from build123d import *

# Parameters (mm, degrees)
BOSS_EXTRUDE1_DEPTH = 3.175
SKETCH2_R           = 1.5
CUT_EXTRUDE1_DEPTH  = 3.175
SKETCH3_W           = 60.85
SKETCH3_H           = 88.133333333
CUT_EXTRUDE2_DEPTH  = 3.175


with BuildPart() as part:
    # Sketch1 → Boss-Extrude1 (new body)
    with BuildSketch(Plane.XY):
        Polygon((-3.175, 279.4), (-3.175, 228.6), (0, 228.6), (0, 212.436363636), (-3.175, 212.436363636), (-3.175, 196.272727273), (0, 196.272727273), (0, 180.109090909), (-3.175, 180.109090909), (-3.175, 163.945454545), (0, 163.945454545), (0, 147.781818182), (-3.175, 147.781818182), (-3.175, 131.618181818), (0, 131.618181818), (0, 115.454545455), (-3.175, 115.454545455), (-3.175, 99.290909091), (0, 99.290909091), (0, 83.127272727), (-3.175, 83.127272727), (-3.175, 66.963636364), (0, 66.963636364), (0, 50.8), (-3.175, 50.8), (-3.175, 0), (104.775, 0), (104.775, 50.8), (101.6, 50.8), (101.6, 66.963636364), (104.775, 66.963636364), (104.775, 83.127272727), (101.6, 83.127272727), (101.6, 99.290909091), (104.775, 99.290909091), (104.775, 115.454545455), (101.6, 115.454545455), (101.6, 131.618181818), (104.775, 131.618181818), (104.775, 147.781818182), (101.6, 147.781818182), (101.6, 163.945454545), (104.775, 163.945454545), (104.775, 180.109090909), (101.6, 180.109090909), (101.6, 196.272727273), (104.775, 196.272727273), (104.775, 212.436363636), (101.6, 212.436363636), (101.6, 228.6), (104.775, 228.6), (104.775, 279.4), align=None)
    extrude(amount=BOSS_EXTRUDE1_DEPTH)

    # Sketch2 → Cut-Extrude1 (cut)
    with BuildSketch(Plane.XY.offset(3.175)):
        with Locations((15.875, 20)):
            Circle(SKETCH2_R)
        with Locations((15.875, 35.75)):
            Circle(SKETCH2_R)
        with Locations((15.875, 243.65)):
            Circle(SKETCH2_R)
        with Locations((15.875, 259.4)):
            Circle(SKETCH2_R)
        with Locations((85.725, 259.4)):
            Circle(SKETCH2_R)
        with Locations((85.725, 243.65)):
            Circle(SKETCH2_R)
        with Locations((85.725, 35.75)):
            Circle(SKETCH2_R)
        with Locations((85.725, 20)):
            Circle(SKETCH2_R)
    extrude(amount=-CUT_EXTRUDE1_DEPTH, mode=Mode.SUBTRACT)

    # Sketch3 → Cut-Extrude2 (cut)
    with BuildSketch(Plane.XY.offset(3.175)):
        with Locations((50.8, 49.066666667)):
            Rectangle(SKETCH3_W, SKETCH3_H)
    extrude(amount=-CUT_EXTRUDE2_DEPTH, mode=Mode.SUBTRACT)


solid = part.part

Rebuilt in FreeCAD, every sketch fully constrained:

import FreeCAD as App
import Part
import Sketcher
Q = App.Units.Quantity

doc = App.newDocument("Part")
body = doc.addObject("PartDesign::Body", "Body")

# Sketch on XY plane
sketch1 = body.newObject("Sketcher::SketchObject", "Sketch")
sketch1.AttachmentSupport = (doc.getObject("XY_Plane"), [""])
sketch1.MapMode = "FlatFace"
sketch1.addGeometry([
    Part.LineSegment(App.Vector(-3.2, 279.4, 0), App.Vector(-3.2, 228.6, 0)),  # 0
    Part.LineSegment(App.Vector(-3.2, 228.6, 0), App.Vector(0, 228.6, 0)),  # 1
    Part.LineSegment(App.Vector(0, 228.6, 0), App.Vector(0, 212.4, 0)),  # 2
    Part.LineSegment(App.Vector(0, 212.4, 0), App.Vector(-3.2, 212.4, 0)),  # 3
    Part.LineSegment(App.Vector(-3.2, 212.4, 0), App.Vector(-3.2, 196.3, 0)),  # 4
    Part.LineSegment(App.Vector(-3.2, 196.3, 0), App.Vector(0, 196.3, 0)),  # 5
    Part.LineSegment(App.Vector(0, 196.3, 0), App.Vector(0, 180.1, 0)),  # 6
    Part.LineSegment(App.Vector(0, 180.1, 0), App.Vector(-3.2, 180.1, 0)),  # 7
    Part.LineSegment(App.Vector(-3.2, 180.1, 0), App.Vector(-3.2, 163.9, 0)),  # 8
    Part.LineSegment(App.Vector(-3.2, 163.9, 0), App.Vector(0, 163.9, 0)),  # 9
    Part.LineSegment(App.Vector(0, 163.9, 0), App.Vector(0, 147.8, 0)),  # 10
    Part.LineSegment(App.Vector(0, 147.8, 0), App.Vector(-3.2, 147.8, 0)),  # 11
    Part.LineSegment(App.Vector(-3.2, 147.8, 0), App.Vector(-3.2, 131.6, 0)),  # 12
    Part.LineSegment(App.Vector(-3.2, 131.6, 0), App.Vector(0, 131.6, 0)),  # 13
    Part.LineSegment(App.Vector(0, 131.6, 0), App.Vector(0, 115.5, 0)),  # 14
    Part.LineSegment(App.Vector(0, 115.5, 0), App.Vector(-3.2, 115.5, 0)),  # 15
    Part.LineSegment(App.Vector(-3.2, 115.5, 0), App.Vector(-3.2, 99.3, 0)),  # 16
    Part.LineSegment(App.Vector(-3.2, 99.3, 0), App.Vector(0, 99.3, 0)),  # 17
    Part.LineSegment(App.Vector(0, 99.3, 0), App.Vector(0, 83.1, 0)),  # 18
    Part.LineSegment(App.Vector(0, 83.1, 0), App.Vector(-3.2, 83.1, 0)),  # 19
    Part.LineSegment(App.Vector(-3.2, 83.1, 0), App.Vector(-3.2, 67, 0)),  # 20
    Part.LineSegment(App.Vector(-3.2, 67, 0), App.Vector(0, 67, 0)),  # 21
    Part.LineSegment(App.Vector(0, 67, 0), App.Vector(0, 50.8, 0)),  # 22
    Part.LineSegment(App.Vector(0, 50.8, 0), App.Vector(-3.2, 50.8, 0)),  # 23
    Part.LineSegment(App.Vector(-3.2, 50.8, 0), App.Vector(-3.2, 0, 0)),  # 24
    Part.LineSegment(App.Vector(-3.2, 0, 0), App.Vector(104.8, 0, 0)),  # 25
    Part.LineSegment(App.Vector(104.8, 0, 0), App.Vector(104.8, 50.8, 0)),  # 26
    Part.LineSegment(App.Vector(104.8, 50.8, 0), App.Vector(101.6, 50.8, 0)),  # 27
    Part.LineSegment(App.Vector(101.6, 50.8, 0), App.Vector(101.6, 67, 0)),  # 28
    Part.LineSegment(App.Vector(101.6, 67, 0), App.Vector(104.8, 67, 0)),  # 29
    Part.LineSegment(App.Vector(104.8, 67, 0), App.Vector(104.8, 83.1, 0)),  # 30
    Part.LineSegment(App.Vector(104.8, 83.1, 0), App.Vector(101.6, 83.1, 0)),  # 31
    Part.LineSegment(App.Vector(101.6, 83.1, 0), App.Vector(101.6, 99.3, 0)),  # 32
    Part.LineSegment(App.Vector(101.6, 99.3, 0), App.Vector(104.8, 99.3, 0)),  # 33
    Part.LineSegment(App.Vector(104.8, 99.3, 0), App.Vector(104.8, 115.5, 0)),  # 34
    Part.LineSegment(App.Vector(104.8, 115.5, 0), App.Vector(101.6, 115.5, 0)),  # 35
    Part.LineSegment(App.Vector(101.6, 115.5, 0), App.Vector(101.6, 131.6, 0)),  # 36
    Part.LineSegment(App.Vector(101.6, 131.6, 0), App.Vector(104.8, 131.6, 0)),  # 37
    Part.LineSegment(App.Vector(104.8, 131.6, 0), App.Vector(104.8, 147.8, 0)),  # 38
    Part.LineSegment(App.Vector(104.8, 147.8, 0), App.Vector(101.6, 147.8, 0)),  # 39
    Part.LineSegment(App.Vector(101.6, 147.8, 0), App.Vector(101.6, 163.9, 0)),  # 40
    Part.LineSegment(App.Vector(101.6, 163.9, 0), App.Vector(104.8, 163.9, 0)),  # 41
    Part.LineSegment(App.Vector(104.8, 163.9, 0), App.Vector(104.8, 180.1, 0)),  # 42
    Part.LineSegment(App.Vector(104.8, 180.1, 0), App.Vector(101.6, 180.1, 0)),  # 43
    Part.LineSegment(App.Vector(101.6, 180.1, 0), App.Vector(101.6, 196.3, 0)),  # 44
    Part.LineSegment(App.Vector(101.6, 196.3, 0), App.Vector(104.8, 196.3, 0)),  # 45
    Part.LineSegment(App.Vector(104.8, 196.3, 0), App.Vector(104.8, 212.4, 0)),  # 46
    Part.LineSegment(App.Vector(104.8, 212.4, 0), App.Vector(101.6, 212.4, 0)),  # 47
    Part.LineSegment(App.Vector(101.6, 212.4, 0), App.Vector(101.6, 228.6, 0)),  # 48
    Part.LineSegment(App.Vector(101.6, 228.6, 0), App.Vector(104.8, 228.6, 0)),  # 49
    Part.LineSegment(App.Vector(104.8, 228.6, 0), App.Vector(104.8, 279.4, 0)),  # 50
    Part.LineSegment(App.Vector(104.8, 279.4, 0), App.Vector(-3.2, 279.4, 0)),  # 51
], False)
sketch1.addConstraint([
    Sketcher.Constraint("Coincident", 0, 2, 1, 1),
    Sketcher.Constraint("Coincident", 1, 2, 2, 1),
    Sketcher.Constraint("Coincident", 2, 2, 3, 1),
    Sketcher.Constraint("Coincident", 3, 2, 4, 1),
    Sketcher.Constraint("Coincident", 4, 2, 5, 1),
    Sketcher.Constraint("Coincident", 5, 2, 6, 1),
    Sketcher.Constraint("Coincident", 6, 2, 7, 1),
    Sketcher.Constraint("Coincident", 7, 2, 8, 1),
    Sketcher.Constraint("Coincident", 8, 2, 9, 1),
    Sketcher.Constraint("Coincident", 9, 2, 10, 1),
    Sketcher.Constraint("Coincident", 10, 2, 11, 1),
    Sketcher.Constraint("Coincident", 11, 2, 12, 1),
    Sketcher.Constraint("Coincident", 12, 2, 13, 1),
    Sketcher.Constraint("Coincident", 13, 2, 14, 1),
    Sketcher.Constraint("Coincident", 14, 2, 15, 1),
    Sketcher.Constraint("Coincident", 15, 2, 16, 1),
    Sketcher.Constraint("Coincident", 16, 2, 17, 1),
    Sketcher.Constraint("Coincident", 17, 2, 18, 1),
    Sketcher.Constraint("Coincident", 18, 2, 19, 1),
    Sketcher.Constraint("Coincident", 19, 2, 20, 1),
    Sketcher.Constraint("Coincident", 20, 2, 21, 1),
    Sketcher.Constraint("Coincident", 21, 2, 22, 1),
    Sketcher.Constraint("Coincident", 22, 2, 23, 1),
    Sketcher.Constraint("Coincident", 23, 2, 24, 1),
    Sketcher.Constraint("Coincident", 24, 2, 25, 1),
    Sketcher.Constraint("Coincident", 25, 2, 26, 1),
    Sketcher.Constraint("Coincident", 26, 2, 27, 1),
    Sketcher.Constraint("Coincident", 27, 2, 28, 1),
    Sketcher.Constraint("Coincident", 28, 2, 29, 1),
    Sketcher.Constraint("Coincident", 29, 2, 30, 1),
    Sketcher.Constraint("Coincident", 30, 2, 31, 1),
    Sketcher.Constraint("Coincident", 31, 2, 32, 1),
    Sketcher.Constraint("Coincident", 32, 2, 33, 1),
    Sketcher.Constraint("Coincident", 33, 2, 34, 1),
    Sketcher.Constraint("Coincident", 34, 2, 35, 1),
    Sketcher.Constraint("Coincident", 35, 2, 36, 1),
    Sketcher.Constraint("Coincident", 36, 2, 37, 1),
    Sketcher.Constraint("Coincident", 37, 2, 38, 1),
    Sketcher.Constraint("Coincident", 38, 2, 39, 1),
    Sketcher.Constraint("Coincident", 39, 2, 40, 1),
    Sketcher.Constraint("Coincident", 40, 2, 41, 1),
    Sketcher.Constraint("Coincident", 41, 2, 42, 1),
    Sketcher.Constraint("Coincident", 42, 2, 43, 1),
    Sketcher.Constraint("Coincident", 43, 2, 44, 1),
    Sketcher.Constraint("Coincident", 44, 2, 45, 1),
    Sketcher.Constraint("Coincident", 45, 2, 46, 1),
    Sketcher.Constraint("Coincident", 46, 2, 47, 1),
    Sketcher.Constraint("Coincident", 47, 2, 48, 1),
    Sketcher.Constraint("Coincident", 48, 2, 49, 1),
    Sketcher.Constraint("Coincident", 49, 2, 50, 1),
    Sketcher.Constraint("Coincident", 50, 2, 51, 1),
    Sketcher.Constraint("Coincident", 51, 2, 0, 1),
    Sketcher.Constraint("Vertical", 0),
    Sketcher.Constraint("Horizontal", 1),
    Sketcher.Constraint("Vertical", 2),
    Sketcher.Constraint("Horizontal", 3),
    Sketcher.Constraint("Vertical", 4),
    Sketcher.Constraint("Horizontal", 5),
    Sketcher.Constraint("Vertical", 6),
    Sketcher.Constraint("Horizontal", 7),
    Sketcher.Constraint("Vertical", 8),
    Sketcher.Constraint("Horizontal", 9),
    Sketcher.Constraint("Vertical", 10),
    Sketcher.Constraint("Horizontal", 11),
    Sketcher.Constraint("Vertical", 12),
    Sketcher.Constraint("Horizontal", 13),
    Sketcher.Constraint("Vertical", 14),
    Sketcher.Constraint("Horizontal", 15),
    Sketcher.Constraint("Vertical", 16),
    Sketcher.Constraint("Horizontal", 17),
    Sketcher.Constraint("Vertical", 18),
    Sketcher.Constraint("Horizontal", 19),
    Sketcher.Constraint("Vertical", 20),
    Sketcher.Constraint("Horizontal", 21),
    Sketcher.Constraint("Vertical", 22),
    Sketcher.Constraint("Horizontal", 23),
    Sketcher.Constraint("Vertical", 24),
    Sketcher.Constraint("Horizontal", 25),
    Sketcher.Constraint("Vertical", 26),
    Sketcher.Constraint("Horizontal", 27),
    Sketcher.Constraint("Vertical", 28),
    Sketcher.Constraint("Horizontal", 29),
    Sketcher.Constraint("Vertical", 30),
    Sketcher.Constraint("Horizontal", 31),
    Sketcher.Constraint("Vertical", 32),
    Sketcher.Constraint("Horizontal", 33),
    Sketcher.Constraint("Vertical", 34),
    Sketcher.Constraint("Horizontal", 35),
    Sketcher.Constraint("Vertical", 36),
    Sketcher.Constraint("Horizontal", 37),
    Sketcher.Constraint("Vertical", 38),
    Sketcher.Constraint("Horizontal", 39),
    Sketcher.Constraint("Vertical", 40),
    Sketcher.Constraint("Horizontal", 41),
    Sketcher.Constraint("Vertical", 42),
    Sketcher.Constraint("Horizontal", 43),
    Sketcher.Constraint("Vertical", 44),
    Sketcher.Constraint("Horizontal", 45),
    Sketcher.Constraint("Vertical", 46),
    Sketcher.Constraint("Horizontal", 47),
    Sketcher.Constraint("Vertical", 48),
    Sketcher.Constraint("Horizontal", 49),
    Sketcher.Constraint("Vertical", 50),
    Sketcher.Constraint("Horizontal", 51),
    Sketcher.Constraint("PointOnObject", 1, 2, -2),
    Sketcher.Constraint("PointOnObject", 5, 2, -2),
    Sketcher.Constraint("PointOnObject", 9, 2, -2),
    Sketcher.Constraint("PointOnObject", 13, 2, -2),
    Sketcher.Constraint("PointOnObject", 17, 2, -2),
    Sketcher.Constraint("PointOnObject", 21, 2, -2),
    Sketcher.Constraint("PointOnObject", 24, 2, -1),
    Sketcher.Constraint("Horizontal", 23, 2, 26, 2),
    Sketcher.Constraint("Horizontal", 21, 2, 28, 2),
    Sketcher.Constraint("Horizontal", 19, 2, 30, 2),
    Sketcher.Constraint("Horizontal", 17, 2, 32, 2),
    Sketcher.Constraint("Horizontal", 15, 2, 34, 2),
    Sketcher.Constraint("Horizontal", 13, 2, 36, 2),
    Sketcher.Constraint("Horizontal", 11, 2, 38, 2),
    Sketcher.Constraint("Horizontal", 9, 2, 40, 2),
    Sketcher.Constraint("Horizontal", 7, 2, 42, 2),
    Sketcher.Constraint("Horizontal", 5, 2, 44, 2),
    Sketcher.Constraint("Horizontal", 3, 2, 46, 2),
    Sketcher.Constraint("Horizontal", 1, 2, 48, 2),
    Sketcher.Constraint("Vertical", 0, 2, 3, 2),
    Sketcher.Constraint("Vertical", 4, 2, 7, 2),
    Sketcher.Constraint("Vertical", 8, 2, 11, 2),
    Sketcher.Constraint("Vertical", 12, 2, 15, 2),
    Sketcher.Constraint("Vertical", 16, 2, 19, 2),
    Sketcher.Constraint("Vertical", 20, 2, 23, 2),
    Sketcher.Constraint("Vertical", 26, 2, 29, 2),
    Sketcher.Constraint("Vertical", 28, 2, 31, 2),
    Sketcher.Constraint("Vertical", 30, 2, 33, 2),
    Sketcher.Constraint("Vertical", 32, 2, 35, 2),
    Sketcher.Constraint("Vertical", 34, 2, 37, 2),
    Sketcher.Constraint("Vertical", 36, 2, 39, 2),
    Sketcher.Constraint("Vertical", 38, 2, 41, 2),
    Sketcher.Constraint("Vertical", 40, 2, 43, 2),
    Sketcher.Constraint("Vertical", 42, 2, 45, 2),
    Sketcher.Constraint("Vertical", 44, 2, 47, 2),
    Sketcher.Constraint("Vertical", 46, 2, 49, 2),
    Sketcher.Constraint("Equal", 23, 27),
    Sketcher.Constraint("Equal", 2, 4),
    Sketcher.Constraint("Equal", 4, 6),
    Sketcher.Constraint("Equal", 6, 8),
    Sketcher.Constraint("Equal", 8, 10),
    Sketcher.Constraint("Equal", 10, 12),
    Sketcher.Constraint("Equal", 12, 14),
    Sketcher.Constraint("Equal", 14, 16),
    Sketcher.Constraint("Equal", 16, 18),
    Sketcher.Constraint("Equal", 18, 20),
    Sketcher.Constraint("Equal", 20, 22),
    Sketcher.Constraint("Equal", 0, 24),
    Sketcher.Constraint("DistanceY", 0, 2, 0, 1, Q("2 in")),
    Sketcher.Constraint("DistanceY", -1, 1, 0, 2, Q("9 in")),
    Sketcher.Constraint("DistanceX", -1, 1, 27, 2, Q("4 in")),
    Sketcher.Constraint("DistanceX", 25, 1, 25, 2, Q("4.25 in")),
])
pad1 = body.newObject("PartDesign::Pad", "Pad")
pad1.Profile = sketch1
pad1.Length = Q("0.125 in")

# Sketch on XY plane
sketch2 = body.newObject("Sketcher::SketchObject", "Sketch001")
sketch2.AttachmentSupport = (doc.getObject("XY_Plane"), [""])
sketch2.MapMode = "FlatFace"
sketch2.AttachmentOffset = App.Placement(App.Vector(0, 0, 0.125 * 25.4), App.Rotation())
sketch2.addGeometry([
    Part.Circle(App.Vector(15.9, 20, 0), App.Vector(0, 0, 1), 1.5),  # 0
    Part.Circle(App.Vector(15.9, 35.8, 0), App.Vector(0, 0, 1), 1.5),  # 1
    Part.Circle(App.Vector(15.9, 243.7, 0), App.Vector(0, 0, 1), 1.5),  # 2
    Part.Circle(App.Vector(15.9, 259.4, 0), App.Vector(0, 0, 1), 1.5),  # 3
    Part.Circle(App.Vector(85.7, 259.4, 0), App.Vector(0, 0, 1), 1.5),  # 4
    Part.Circle(App.Vector(85.7, 243.7, 0), App.Vector(0, 0, 1), 1.5),  # 5
    Part.Circle(App.Vector(85.7, 35.8, 0), App.Vector(0, 0, 1), 1.5),  # 6
    Part.Circle(App.Vector(85.7, 20, 0), App.Vector(0, 0, 1), 1.5),  # 7
], False)
sketch2.addConstraint([
    Sketcher.Constraint("Equal", 0, 1),
    Sketcher.Constraint("Equal", 1, 2),
    Sketcher.Constraint("Equal", 2, 3),
    Sketcher.Constraint("Equal", 3, 4),
    Sketcher.Constraint("Equal", 4, 5),
    Sketcher.Constraint("Equal", 5, 6),
    Sketcher.Constraint("Equal", 6, 7),
    Sketcher.Constraint("Horizontal", 3, 3, 4, 3),
    Sketcher.Constraint("Horizontal", 2, 3, 5, 3),
    Sketcher.Constraint("Horizontal", 1, 3, 6, 3),
    Sketcher.Constraint("Horizontal", 0, 3, 7, 3),
    Sketcher.Constraint("Vertical", 0, 3, 1, 3),
    Sketcher.Constraint("Vertical", 1, 3, 2, 3),
    Sketcher.Constraint("Vertical", 2, 3, 3, 3),
    Sketcher.Constraint("Vertical", 4, 3, 5, 3),
    Sketcher.Constraint("Vertical", 5, 3, 6, 3),
    Sketcher.Constraint("Vertical", 6, 3, 7, 3),
    Sketcher.Constraint("Diameter", 0, 3.0),
    Sketcher.Constraint("DistanceX", 3, 3, 4, 3, Q("2.75 in")),
    Sketcher.Constraint("DistanceX", -1, 1, 0, 3, Q("0.625 in")),
    Sketcher.Constraint("DistanceY", -1, 1, 0, 3, 20.0),
    Sketcher.Constraint("DistanceY", -1, 1, 1, 3, 35.75),
    Sketcher.Constraint("DistanceY", -1, 1, 2, 3, 243.65),
    Sketcher.Constraint("DistanceY", -1, 1, 3, 3, 259.4),
])
pocket1 = body.newObject("PartDesign::Pocket", "Pocket")
pocket1.Profile = sketch2
pocket1.Length = Q("0.125 in")

# Sketch on XY plane
sketch3 = body.newObject("Sketcher::SketchObject", "Sketch002")
sketch3.AttachmentSupport = (doc.getObject("XY_Plane"), [""])
sketch3.MapMode = "FlatFace"
sketch3.AttachmentOffset = App.Placement(App.Vector(0, 0, 0.125 * 25.4), App.Rotation())
sketch3.addGeometry([
    Part.LineSegment(App.Vector(20, 93, 0), App.Vector(20, 5, 0)),
    Part.LineSegment(App.Vector(20, 5, 0), App.Vector(81, 5, 0)),
    Part.LineSegment(App.Vector(81, 5, 0), App.Vector(81, 93, 0)),
    Part.LineSegment(App.Vector(81, 93, 0), App.Vector(20, 93, 0)),
], False)
sketch3.addConstraint([
    Sketcher.Constraint("Coincident", 0, 2, 1, 1),
    Sketcher.Constraint("Coincident", 1, 2, 2, 1),
    Sketcher.Constraint("Coincident", 2, 2, 3, 1),
    Sketcher.Constraint("Coincident", 3, 2, 0, 1),
    Sketcher.Constraint("Vertical", 0),
    Sketcher.Constraint("Horizontal", 1),
    Sketcher.Constraint("Vertical", 2),
    Sketcher.Constraint("Horizontal", 3),
    Sketcher.Constraint("DistanceX", 1, 1, 1, 2, 60.85),
    Sketcher.Constraint("DistanceX", -1, 1, 0, 2, 20.375),
    Sketcher.Constraint("DistanceY", -1, 1, 0, 2, 5.0),
    Sketcher.Constraint("DistanceY", 0, 2, 0, 1, 88.133333),
])
pocket2 = body.newObject("PartDesign::Pocket", "Pocket001")
pocket2.Profile = sketch3
pocket2.Length = Q("0.125 in")

doc.recompute()
